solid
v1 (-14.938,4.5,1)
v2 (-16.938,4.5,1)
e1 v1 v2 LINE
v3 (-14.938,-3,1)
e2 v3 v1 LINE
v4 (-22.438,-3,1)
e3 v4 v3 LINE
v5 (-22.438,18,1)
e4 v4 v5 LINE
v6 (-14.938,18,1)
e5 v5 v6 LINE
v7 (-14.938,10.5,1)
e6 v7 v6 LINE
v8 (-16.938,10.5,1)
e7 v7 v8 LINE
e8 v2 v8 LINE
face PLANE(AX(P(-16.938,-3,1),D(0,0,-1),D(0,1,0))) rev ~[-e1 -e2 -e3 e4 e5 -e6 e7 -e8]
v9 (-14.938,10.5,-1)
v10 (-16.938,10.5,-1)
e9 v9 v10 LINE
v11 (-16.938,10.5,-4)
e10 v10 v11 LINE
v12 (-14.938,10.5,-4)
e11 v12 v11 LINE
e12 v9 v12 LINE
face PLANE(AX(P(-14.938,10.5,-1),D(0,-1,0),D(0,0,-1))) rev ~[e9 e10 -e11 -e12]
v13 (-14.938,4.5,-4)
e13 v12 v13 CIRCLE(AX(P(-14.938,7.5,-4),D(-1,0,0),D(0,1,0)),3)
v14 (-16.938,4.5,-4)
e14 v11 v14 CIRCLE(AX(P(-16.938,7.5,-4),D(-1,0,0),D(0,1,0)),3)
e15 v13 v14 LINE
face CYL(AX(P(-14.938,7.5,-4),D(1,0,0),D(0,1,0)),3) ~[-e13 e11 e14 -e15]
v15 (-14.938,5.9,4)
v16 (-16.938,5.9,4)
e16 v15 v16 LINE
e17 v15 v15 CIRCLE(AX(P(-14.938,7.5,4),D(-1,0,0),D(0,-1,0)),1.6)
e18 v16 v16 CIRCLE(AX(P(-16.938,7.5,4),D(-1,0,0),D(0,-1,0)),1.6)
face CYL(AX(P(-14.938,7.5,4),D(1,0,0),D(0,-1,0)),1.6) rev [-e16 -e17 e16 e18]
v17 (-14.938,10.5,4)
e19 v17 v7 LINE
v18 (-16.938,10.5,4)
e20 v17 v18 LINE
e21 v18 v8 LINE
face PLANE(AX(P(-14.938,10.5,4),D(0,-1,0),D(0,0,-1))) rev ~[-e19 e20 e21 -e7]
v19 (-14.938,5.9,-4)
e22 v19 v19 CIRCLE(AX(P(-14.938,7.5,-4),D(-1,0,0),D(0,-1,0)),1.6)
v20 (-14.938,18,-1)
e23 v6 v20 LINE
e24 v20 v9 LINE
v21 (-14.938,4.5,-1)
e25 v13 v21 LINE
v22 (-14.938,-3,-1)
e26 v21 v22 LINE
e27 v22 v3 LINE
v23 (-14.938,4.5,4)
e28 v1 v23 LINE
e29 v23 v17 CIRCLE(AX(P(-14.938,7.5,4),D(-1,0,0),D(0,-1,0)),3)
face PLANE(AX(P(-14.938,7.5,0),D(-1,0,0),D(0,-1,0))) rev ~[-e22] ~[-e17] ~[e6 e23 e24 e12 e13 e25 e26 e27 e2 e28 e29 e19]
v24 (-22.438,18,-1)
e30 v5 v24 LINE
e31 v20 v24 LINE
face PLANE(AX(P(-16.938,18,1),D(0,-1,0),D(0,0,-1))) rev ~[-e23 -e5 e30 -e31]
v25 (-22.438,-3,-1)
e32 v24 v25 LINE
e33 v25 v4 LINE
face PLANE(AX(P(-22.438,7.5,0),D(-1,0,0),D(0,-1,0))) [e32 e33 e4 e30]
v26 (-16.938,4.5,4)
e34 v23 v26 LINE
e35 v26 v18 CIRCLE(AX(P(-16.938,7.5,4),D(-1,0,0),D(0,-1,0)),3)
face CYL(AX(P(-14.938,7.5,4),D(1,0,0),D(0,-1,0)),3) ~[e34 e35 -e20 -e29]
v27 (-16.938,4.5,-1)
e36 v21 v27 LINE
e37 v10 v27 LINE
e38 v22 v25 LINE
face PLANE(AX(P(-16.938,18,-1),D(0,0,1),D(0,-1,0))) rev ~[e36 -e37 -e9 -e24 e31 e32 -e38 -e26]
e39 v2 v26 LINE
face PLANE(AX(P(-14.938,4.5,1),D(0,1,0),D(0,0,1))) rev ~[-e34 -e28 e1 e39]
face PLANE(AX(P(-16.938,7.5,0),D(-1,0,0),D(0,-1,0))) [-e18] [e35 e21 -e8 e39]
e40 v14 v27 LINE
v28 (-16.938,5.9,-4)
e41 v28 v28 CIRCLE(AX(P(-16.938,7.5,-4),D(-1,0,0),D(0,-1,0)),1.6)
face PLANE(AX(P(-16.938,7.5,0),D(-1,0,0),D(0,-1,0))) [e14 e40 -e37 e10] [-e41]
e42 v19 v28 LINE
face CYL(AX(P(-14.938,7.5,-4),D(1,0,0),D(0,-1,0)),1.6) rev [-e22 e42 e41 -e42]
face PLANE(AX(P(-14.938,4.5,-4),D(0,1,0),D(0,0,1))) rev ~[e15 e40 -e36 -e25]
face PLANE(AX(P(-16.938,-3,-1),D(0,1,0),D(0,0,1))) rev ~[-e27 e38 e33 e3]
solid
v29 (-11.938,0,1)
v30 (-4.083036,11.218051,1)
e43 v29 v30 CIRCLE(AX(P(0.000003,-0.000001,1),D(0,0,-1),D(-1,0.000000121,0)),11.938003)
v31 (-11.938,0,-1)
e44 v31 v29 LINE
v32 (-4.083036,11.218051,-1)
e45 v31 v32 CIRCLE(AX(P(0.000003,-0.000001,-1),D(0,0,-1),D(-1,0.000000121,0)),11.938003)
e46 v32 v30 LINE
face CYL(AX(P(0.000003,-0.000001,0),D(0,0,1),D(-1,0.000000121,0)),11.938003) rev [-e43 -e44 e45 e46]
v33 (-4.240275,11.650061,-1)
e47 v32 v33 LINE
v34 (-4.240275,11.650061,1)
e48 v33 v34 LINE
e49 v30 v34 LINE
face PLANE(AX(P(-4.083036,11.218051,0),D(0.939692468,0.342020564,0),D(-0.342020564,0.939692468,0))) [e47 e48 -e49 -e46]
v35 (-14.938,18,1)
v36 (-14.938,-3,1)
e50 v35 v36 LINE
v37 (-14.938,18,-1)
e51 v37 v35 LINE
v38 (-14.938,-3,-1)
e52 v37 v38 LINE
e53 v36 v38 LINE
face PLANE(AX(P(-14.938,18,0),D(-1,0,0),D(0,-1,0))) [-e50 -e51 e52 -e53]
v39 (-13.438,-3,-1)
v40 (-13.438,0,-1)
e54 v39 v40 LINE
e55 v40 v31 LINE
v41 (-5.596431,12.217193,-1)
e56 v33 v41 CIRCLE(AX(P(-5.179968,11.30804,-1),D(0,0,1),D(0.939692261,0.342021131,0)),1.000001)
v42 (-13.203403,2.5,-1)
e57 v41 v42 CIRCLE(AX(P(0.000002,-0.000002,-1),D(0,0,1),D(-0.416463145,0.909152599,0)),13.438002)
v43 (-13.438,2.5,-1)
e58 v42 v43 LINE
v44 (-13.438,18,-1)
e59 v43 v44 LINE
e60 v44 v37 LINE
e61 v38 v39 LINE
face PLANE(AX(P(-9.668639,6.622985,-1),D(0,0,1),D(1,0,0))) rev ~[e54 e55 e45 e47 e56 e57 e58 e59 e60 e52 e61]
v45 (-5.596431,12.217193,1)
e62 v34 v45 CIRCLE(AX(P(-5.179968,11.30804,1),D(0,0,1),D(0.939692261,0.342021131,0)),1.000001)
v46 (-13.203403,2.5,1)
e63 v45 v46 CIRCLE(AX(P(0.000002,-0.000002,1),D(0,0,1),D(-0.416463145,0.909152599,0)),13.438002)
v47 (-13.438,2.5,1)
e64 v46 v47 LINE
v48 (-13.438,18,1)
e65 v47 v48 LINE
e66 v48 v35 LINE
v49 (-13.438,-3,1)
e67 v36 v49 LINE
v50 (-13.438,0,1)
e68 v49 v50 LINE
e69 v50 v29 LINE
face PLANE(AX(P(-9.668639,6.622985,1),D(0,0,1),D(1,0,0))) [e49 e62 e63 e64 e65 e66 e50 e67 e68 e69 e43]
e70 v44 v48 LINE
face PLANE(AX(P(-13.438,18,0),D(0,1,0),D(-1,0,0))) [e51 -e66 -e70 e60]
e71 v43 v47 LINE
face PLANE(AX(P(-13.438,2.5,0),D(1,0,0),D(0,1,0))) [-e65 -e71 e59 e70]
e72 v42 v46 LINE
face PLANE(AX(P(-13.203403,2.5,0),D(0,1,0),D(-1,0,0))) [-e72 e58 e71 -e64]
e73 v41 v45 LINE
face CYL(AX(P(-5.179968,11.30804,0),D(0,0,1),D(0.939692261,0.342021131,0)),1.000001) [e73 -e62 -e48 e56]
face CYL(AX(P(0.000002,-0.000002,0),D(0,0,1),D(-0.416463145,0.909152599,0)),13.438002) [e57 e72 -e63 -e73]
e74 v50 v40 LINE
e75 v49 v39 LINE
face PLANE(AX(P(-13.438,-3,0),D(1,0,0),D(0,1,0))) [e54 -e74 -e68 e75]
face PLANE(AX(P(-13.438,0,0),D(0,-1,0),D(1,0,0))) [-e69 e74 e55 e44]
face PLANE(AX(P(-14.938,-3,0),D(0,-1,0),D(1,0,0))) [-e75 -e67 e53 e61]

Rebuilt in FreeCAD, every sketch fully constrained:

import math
import FreeCAD as App
import Part
import Sketcher
from FreeCAD import Vector
Q = App.Units.Quantity

doc = App.newDocument("Part")
params = doc.addObject("Spreadsheet::Sheet", "Params")
for row, (alias, value) in enumerate([
    ("sketch1_radius", "1.000001 mm"),
    ("sketch1_height", "21 mm"),
    ("sketch1_height2", "3 mm"),
    ("sketch1_width", "1.5 mm"),
    ("sketch1_height3", "15.5 mm"),
    ("pad1_length", "2 mm"),
    ("sketch2_radius", "3 mm"),
    ("sketch2_diameter", "3.2 mm"),
    ("sketch2_height", "2 mm"),
    ("sketch2_height2", "3 mm"),
    ("sketch2_width", "7.5 mm"),
    ("pad2_length", "2 mm"),
    ("sketch3_width", "21 mm"),
    ("sketch3_height", "2 mm"),
    ("pad3_length", "5.5 mm"),
], start=1):
    params.set(f"A{row}", alias)
    params.set(f"B{row}", "=" + value)
    params.setAlias(f"B{row}", alias)

body = doc.addObject("PartDesign::Body", "Body")

# Sketch on XY plane
sketch1 = body.newObject("Sketcher::SketchObject", "Sketch")
sketch1.AttachmentSupport = (doc.getObject("XY_Plane"), [""])
sketch1.MapMode = "FlatFace"
sketch1.addGeometry(Part.LineSegment(Vector(-13.44, 0, 0), Vector(-11.94, 0, 0)), False)
sketch1.addGeometry(Part.ArcOfCircle(Part.Circle(Vector(0, 0, 0), Vector(0, 0, 1), 11.94), math.radians(110), math.radians(180)), False)
sketch1.addGeometry(Part.LineSegment(Vector(-4.08, 11.22, 0), Vector(-4.24, 11.65, 0)), False)
sketch1.addGeometry(Part.ArcOfCircle(Part.Circle(Vector(-5.18, 11.31, 0), Vector(0, 0, 1), 1), math.radians(20), math.radians(115)), False)
sketch1.addGeometry(Part.ArcOfCircle(Part.Circle(Vector(0, 0, 0), Vector(0, 0, 1), 13.44), math.radians(115), math.radians(169)), False)
sketch1.addGeometry(Part.LineSegment(Vector(-13.2, 2.5, 0), Vector(-13.44, 2.5, 0)), False)
sketch1.addGeometry(Part.LineSegment(Vector(-13.44, 2.5, 0), Vector(-13.44, 18, 0)), False)
sketch1.addGeometry(Part.LineSegment(Vector(-13.44, 18, 0), Vector(-14.94, 18, 0)), False)
sketch1.addGeometry(Part.LineSegment(Vector(-14.94, 18, 0), Vector(-14.94, -3, 0)), False)
sketch1.addGeometry(Part.LineSegment(Vector(-14.94, -3, 0), Vector(-13.44, -3, 0)), False)
sketch1.addGeometry(Part.LineSegment(Vector(-13.44, -3, 0), Vector(-13.44, 0, 0)), False)
sketch1.addConstraint(Sketcher.Constraint("Coincident", 0, 2, 1, 2))
sketch1.addConstraint(Sketcher.Constraint("Coincident", 1, 1, 2, 1))
sketch1.addConstraint(Sketcher.Constraint("Tangent", 2, 2, 3, 1))
sketch1.addConstraint(Sketcher.Constraint("Tangent", 3, 2, 4, 1))
sketch1.addConstraint(Sketcher.Constraint("Coincident", 4, 2, 5, 1))
sketch1.addConstraint(Sketcher.Constraint("Coincident", 5, 2, 6, 1))
sketch1.addConstraint(Sketcher.Constraint("Coincident", 6, 2, 7, 1))
sketch1.addConstraint(Sketcher.Constraint("Coincident", 7, 2, 8, 1))
sketch1.addConstraint(Sketcher.Constraint("Coincident", 8, 2, 9, 1))
sketch1.addConstraint(Sketcher.Constraint("Coincident", 9, 2, 10, 1))
sketch1.addConstraint(Sketcher.Constraint("Coincident", 10, 2, 0, 1))
sketch1.addConstraint(Sketcher.Constraint("Horizontal", 0))
sketch1.addConstraint(Sketcher.Constraint("Horizontal", 5))
sketch1.addConstraint(Sketcher.Constraint("Vertical", 6))
sketch1.addConstraint(Sketcher.Constraint("Horizontal", 7))
sketch1.addConstraint(Sketcher.Constraint("Vertical", 8))
sketch1.addConstraint(Sketcher.Constraint("Horizontal", 9))
sketch1.addConstraint(Sketcher.Constraint("Vertical", 10))
sketch1.addConstraint(Sketcher.Constraint("Coincident", 1, 3, -1, 1))
sketch1.addConstraint(Sketcher.Constraint("Coincident", 4, 3, -1, 1))
sketch1.addConstraint(Sketcher.Constraint("PointOnObject", 0, 2, -1))
sketch1.addConstraint(Sketcher.Constraint("Vertical", 6, 2, 9, 2))
sketch1.addConstraint(Sketcher.Constraint("Equal", 0, 7))
sketch1.addConstraint(Sketcher.Constraint("Radius", 3, Q("1.000001 mm")))
sketch1.addConstraint(Sketcher.Constraint("DistanceY", 8, 2, 8, 1, Q("21 mm")))
sketch1.addConstraint(Sketcher.Constraint("DistanceY", 10, 1, 10, 2, Q("3 mm")))
sketch1.addConstraint(Sketcher.Constraint("DistanceX", 0, 1, 0, 2, Q("1.5 mm")))
sketch1.addConstraint(Sketcher.Constraint("DistanceY", 6, 1, 6, 2, Q("15.5 mm")))
sketch1.addConstraint(Sketcher.Constraint("DistanceX", 0, 2, -1, 1, Q("11.938 mm")))
sketch1.addConstraint(Sketcher.Constraint("Radius", 4, Q("13.438002 mm")))
sketch1.addConstraint(Sketcher.Constraint("DistanceY", -1, 1, 3, 3, Q("11.30804 mm")))
sketch1.addConstraint(Sketcher.Constraint("DistanceY", -1, 1, 1, 1, Q("11.218051 mm")))
sketch1.setExpression("Constraints[23]", "Params.sketch1_radius")
sketch1.setExpression("Constraints[24]", "Params.sketch1_height")
sketch1.setExpression("Constraints[25]", "Params.sketch1_height2")
sketch1.setExpression("Constraints[26]", "Params.sketch1_width")
sketch1.setExpression("Constraints[27]", "Params.sketch1_height3")
pad1 = body.newObject("PartDesign::Pad", "Pad")
pad1.Profile = sketch1
pad1.setExpression("Length", "Params.pad1_length")
pad1.Midplane = True
body2 = doc.addObject("PartDesign::Body", "Body001")

# Sketch on YZ plane
sketch2 = body2.newObject("Sketcher::SketchObject", "Sketch001")
sketch2.AttachmentSupport = (doc.getObject("YZ_Plane001"), [""])
sketch2.MapMode = "FlatFace"
sketch2.AttachmentOffset = App.Placement(Vector(0, 0, -14.938), App.Rotation())
sketch2.addGeometry(Part.LineSegment(Vector(18, 1, 0), Vector(18, -1, 0)), False)
sketch2.addGeometry(Part.LineSegment(Vector(18, -1, 0), Vector(10.5, -1, 0)), False)
sketch2.addGeometry(Part.LineSegment(Vector(10.5, -1, 0), Vector(10.5, -4, 0)), False)
sketch2.addGeometry(Part.ArcOfCircle(Part.Circle(Vector(7.5, -4, 0), Vector(0, 0, 1), 3), math.radians(180), math.radians(360)), False)
sketch2.addGeometry(Part.LineSegment(Vector(4.5, -4, 0), Vector(4.5, -1, 0)), False)
sketch2.addGeometry(Part.LineSegment(Vector(4.5, -1, 0), Vector(-3, -1, 0)), False)
sketch2.addGeometry(Part.LineSegment(Vector(-3, -1, 0), Vector(-3, 1, 0)), False)
sketch2.addGeometry(Part.LineSegment(Vector(-3, 1, 0), Vector(4.5, 1, 0)), False)
sketch2.addGeometry(Part.LineSegment(Vector(4.5, 1, 0), Vector(4.5, 4, 0)), False)
sketch2.addGeometry(Part.ArcOfCircle(Part.Circle(Vector(7.5, 4, 0), Vector(0, 0, 1), 3), math.radians(0), math.radians(180)), False)
sketch2.addGeometry(Part.LineSegment(Vector(10.5, 4, 0), Vector(10.5, 1, 0)), False)
sketch2.addGeometry(Part.LineSegment(Vector(10.5, 1, 0), Vector(18, 1, 0)), False)
sketch2.addGeometry(Part.Circle(Vector(7.5, -4, 0), Vector(0, 0, 1), 1.6), False)
sketch2.addGeometry(Part.Circle(Vector(7.5, 4, 0), Vector(0, 0, 1), 1.6), False)
sketch2.addConstraint(Sketcher.Constraint("Coincident", 0, 2, 1, 1))
sketch2.addConstraint(Sketcher.Constraint("Coincident", 1, 2, 2, 1))
sketch2.addConstraint(Sketcher.Constraint("Tangent", 2, 2, 3, 2))
sketch2.addConstraint(Sketcher.Constraint("Tangent", 3, 1, 4, 1))
sketch2.addConstraint(Sketcher.Constraint("Coincident", 4, 2, 5, 1))
sketch2.addConstraint(Sketcher.Constraint("Coincident", 5, 2, 6, 1))
sketch2.addConstraint(Sketcher.Constraint("Coincident", 6, 2, 7, 1))
sketch2.addConstraint(Sketcher.Constraint("Coincident", 7, 2, 8, 1))
sketch2.addConstraint(Sketcher.Constraint("Tangent", 8, 2, 9, 2))
sketch2.addConstraint(Sketcher.Constraint("Tangent", 9, 1, 10, 1))
sketch2.addConstraint(Sketcher.Constraint("Coincident", 10, 2, 11, 1))
sketch2.addConstraint(Sketcher.Constraint("Coincident", 11, 2, 0, 1))
sketch2.addConstraint(Sketcher.Constraint("Vertical", 0))
sketch2.addConstraint(Sketcher.Constraint("Horizontal", 1))
sketch2.addConstraint(Sketcher.Constraint("Vertical", 2))
sketch2.addConstraint(Sketcher.Constraint("Vertical", 4))
sketch2.addConstraint(Sketcher.Constraint("Horizontal", 5))
sketch2.addConstraint(Sketcher.Constraint("Vertical", 6))
sketch2.addConstraint(Sketcher.Constraint("Horizontal", 7))
sketch2.addConstraint(Sketcher.Constraint("Vertical", 8))
sketch2.addConstraint(Sketcher.Constraint("Vertical", 10))
sketch2.addConstraint(Sketcher.Constraint("Horizontal", 11))
sketch2.addConstraint(Sketcher.Constraint("Coincident", 12, 3, 3, 3))
sketch2.addConstraint(Sketcher.Constraint("Coincident", 13, 3, 9, 3))
sketch2.addConstraint(Sketcher.Constraint("Equal", 3, 9))
sketch2.addConstraint(Sketcher.Constraint("Equal", 12, 13))
sketch2.addConstraint(Sketcher.Constraint("Symmetric", 3, 3, 9, 3, -1))
sketch2.addConstraint(Sketcher.Constraint("Horizontal", 1, 2, 4, 2))
sketch2.addConstraint(Sketcher.Constraint("Horizontal", 7, 2, 10, 2))
sketch2.addConstraint(Sketcher.Constraint("Equal", 1, 5))
sketch2.addConstraint(Sketcher.Constraint("Equal", 4, 8))
sketch2.addConstraint(Sketcher.Constraint("Radius", 3, Q("3 mm")))
sketch2.addConstraint(Sketcher.Constraint("Diameter", 12, Q("3.2 mm")))
sketch2.addConstraint(Sketcher.Constraint("DistanceY", 0, 2, 0, 1, Q("2 mm")))
sketch2.addConstraint(Sketcher.Constraint("DistanceY", 2, 2, 2, 1, Q("3 mm")))
sketch2.addConstraint(Sketcher.Constraint("DistanceX", 1, 2, 1, 1, Q("7.5 mm")))
sketch2.addConstraint(Sketcher.Constraint("DistanceX", -1, 1, 0, 2, Q("18 mm")))
sketch2.setExpression("Constraints[31]", "Params.sketch2_radius")
sketch2.setExpression("Constraints[32]", "Params.sketch2_diameter")
sketch2.setExpression("Constraints[33]", "Params.sketch2_height")
sketch2.setExpression("Constraints[34]", "Params.sketch2_height2")
sketch2.setExpression("Constraints[35]", "Params.sketch2_width")
pad2 = body2.newObject("PartDesign::Pad", "Pad001")
pad2.Profile = sketch2
pad2.setExpression("Length", "Params.pad2_length")
pad2.Reversed = True

# Sketch on YZ plane
sketch3 = body2.newObject("Sketcher::SketchObject", "Sketch002")
sketch3.AttachmentSupport = (doc.getObject("YZ_Plane001"), [""])
sketch3.MapMode = "FlatFace"
sketch3.AttachmentOffset = App.Placement(Vector(0, 0, -16.938), App.Rotation())
sketch3.addGeometry(Part.LineSegment(Vector(18, 1, 0), Vector(18, -1, 0)), False)
sketch3.addGeometry(Part.LineSegment(Vector(18, -1, 0), Vector(-3, -1, 0)), False)
sketch3.addGeometry(Part.LineSegment(Vector(-3, -1, 0), Vector(-3, 1, 0)), False)
sketch3.addGeometry(Part.LineSegment(Vector(-3, 1, 0), Vector(18, 1, 0)), False)
sketch3.addConstraint(Sketcher.Constraint("Coincident", 0, 2, 1, 1))
sketch3.addConstraint(Sketcher.Constraint("Coincident", 1, 2, 2, 1))
sketch3.addConstraint(Sketcher.Constraint("Coincident", 2, 2, 3, 1))
sketch3.addConstraint(Sketcher.Constraint("Coincident", 3, 2, 0, 1))
sketch3.addConstraint(Sketcher.Constraint("Vertical", 0))
sketch3.addConstraint(Sketcher.Constraint("Horizontal", 1))
sketch3.addConstraint(Sketcher.Constraint("Vertical", 2))
sketch3.addConstraint(Sketcher.Constraint("Horizontal", 3))
sketch3.addConstraint(Sketcher.Constraint("DistanceX", 1, 2, 1, 1, Q("21 mm")))
sketch3.addConstraint(Sketcher.Constraint("DistanceY", 0, 2, 0, 1, Q("2 mm")))
sketch3.addConstraint(Sketcher.Constraint("DistanceX", -1, 1, 0, 2, Q("18 mm")))
sketch3.addConstraint(Sketcher.Constraint("DistanceY", 0, 2, -1, 1, Q("1 mm")))
sketch3.setExpression("Constraints[8]", "Params.sketch3_width")
sketch3.setExpression("Constraints[9]", "Params.sketch3_height")
pad3 = body2.newObject("PartDesign::Pad", "Pad002")
pad3.Profile = sketch3
pad3.setExpression("Length", "Params.pad3_length")
pad3.Reversed = True

doc.recompute()
